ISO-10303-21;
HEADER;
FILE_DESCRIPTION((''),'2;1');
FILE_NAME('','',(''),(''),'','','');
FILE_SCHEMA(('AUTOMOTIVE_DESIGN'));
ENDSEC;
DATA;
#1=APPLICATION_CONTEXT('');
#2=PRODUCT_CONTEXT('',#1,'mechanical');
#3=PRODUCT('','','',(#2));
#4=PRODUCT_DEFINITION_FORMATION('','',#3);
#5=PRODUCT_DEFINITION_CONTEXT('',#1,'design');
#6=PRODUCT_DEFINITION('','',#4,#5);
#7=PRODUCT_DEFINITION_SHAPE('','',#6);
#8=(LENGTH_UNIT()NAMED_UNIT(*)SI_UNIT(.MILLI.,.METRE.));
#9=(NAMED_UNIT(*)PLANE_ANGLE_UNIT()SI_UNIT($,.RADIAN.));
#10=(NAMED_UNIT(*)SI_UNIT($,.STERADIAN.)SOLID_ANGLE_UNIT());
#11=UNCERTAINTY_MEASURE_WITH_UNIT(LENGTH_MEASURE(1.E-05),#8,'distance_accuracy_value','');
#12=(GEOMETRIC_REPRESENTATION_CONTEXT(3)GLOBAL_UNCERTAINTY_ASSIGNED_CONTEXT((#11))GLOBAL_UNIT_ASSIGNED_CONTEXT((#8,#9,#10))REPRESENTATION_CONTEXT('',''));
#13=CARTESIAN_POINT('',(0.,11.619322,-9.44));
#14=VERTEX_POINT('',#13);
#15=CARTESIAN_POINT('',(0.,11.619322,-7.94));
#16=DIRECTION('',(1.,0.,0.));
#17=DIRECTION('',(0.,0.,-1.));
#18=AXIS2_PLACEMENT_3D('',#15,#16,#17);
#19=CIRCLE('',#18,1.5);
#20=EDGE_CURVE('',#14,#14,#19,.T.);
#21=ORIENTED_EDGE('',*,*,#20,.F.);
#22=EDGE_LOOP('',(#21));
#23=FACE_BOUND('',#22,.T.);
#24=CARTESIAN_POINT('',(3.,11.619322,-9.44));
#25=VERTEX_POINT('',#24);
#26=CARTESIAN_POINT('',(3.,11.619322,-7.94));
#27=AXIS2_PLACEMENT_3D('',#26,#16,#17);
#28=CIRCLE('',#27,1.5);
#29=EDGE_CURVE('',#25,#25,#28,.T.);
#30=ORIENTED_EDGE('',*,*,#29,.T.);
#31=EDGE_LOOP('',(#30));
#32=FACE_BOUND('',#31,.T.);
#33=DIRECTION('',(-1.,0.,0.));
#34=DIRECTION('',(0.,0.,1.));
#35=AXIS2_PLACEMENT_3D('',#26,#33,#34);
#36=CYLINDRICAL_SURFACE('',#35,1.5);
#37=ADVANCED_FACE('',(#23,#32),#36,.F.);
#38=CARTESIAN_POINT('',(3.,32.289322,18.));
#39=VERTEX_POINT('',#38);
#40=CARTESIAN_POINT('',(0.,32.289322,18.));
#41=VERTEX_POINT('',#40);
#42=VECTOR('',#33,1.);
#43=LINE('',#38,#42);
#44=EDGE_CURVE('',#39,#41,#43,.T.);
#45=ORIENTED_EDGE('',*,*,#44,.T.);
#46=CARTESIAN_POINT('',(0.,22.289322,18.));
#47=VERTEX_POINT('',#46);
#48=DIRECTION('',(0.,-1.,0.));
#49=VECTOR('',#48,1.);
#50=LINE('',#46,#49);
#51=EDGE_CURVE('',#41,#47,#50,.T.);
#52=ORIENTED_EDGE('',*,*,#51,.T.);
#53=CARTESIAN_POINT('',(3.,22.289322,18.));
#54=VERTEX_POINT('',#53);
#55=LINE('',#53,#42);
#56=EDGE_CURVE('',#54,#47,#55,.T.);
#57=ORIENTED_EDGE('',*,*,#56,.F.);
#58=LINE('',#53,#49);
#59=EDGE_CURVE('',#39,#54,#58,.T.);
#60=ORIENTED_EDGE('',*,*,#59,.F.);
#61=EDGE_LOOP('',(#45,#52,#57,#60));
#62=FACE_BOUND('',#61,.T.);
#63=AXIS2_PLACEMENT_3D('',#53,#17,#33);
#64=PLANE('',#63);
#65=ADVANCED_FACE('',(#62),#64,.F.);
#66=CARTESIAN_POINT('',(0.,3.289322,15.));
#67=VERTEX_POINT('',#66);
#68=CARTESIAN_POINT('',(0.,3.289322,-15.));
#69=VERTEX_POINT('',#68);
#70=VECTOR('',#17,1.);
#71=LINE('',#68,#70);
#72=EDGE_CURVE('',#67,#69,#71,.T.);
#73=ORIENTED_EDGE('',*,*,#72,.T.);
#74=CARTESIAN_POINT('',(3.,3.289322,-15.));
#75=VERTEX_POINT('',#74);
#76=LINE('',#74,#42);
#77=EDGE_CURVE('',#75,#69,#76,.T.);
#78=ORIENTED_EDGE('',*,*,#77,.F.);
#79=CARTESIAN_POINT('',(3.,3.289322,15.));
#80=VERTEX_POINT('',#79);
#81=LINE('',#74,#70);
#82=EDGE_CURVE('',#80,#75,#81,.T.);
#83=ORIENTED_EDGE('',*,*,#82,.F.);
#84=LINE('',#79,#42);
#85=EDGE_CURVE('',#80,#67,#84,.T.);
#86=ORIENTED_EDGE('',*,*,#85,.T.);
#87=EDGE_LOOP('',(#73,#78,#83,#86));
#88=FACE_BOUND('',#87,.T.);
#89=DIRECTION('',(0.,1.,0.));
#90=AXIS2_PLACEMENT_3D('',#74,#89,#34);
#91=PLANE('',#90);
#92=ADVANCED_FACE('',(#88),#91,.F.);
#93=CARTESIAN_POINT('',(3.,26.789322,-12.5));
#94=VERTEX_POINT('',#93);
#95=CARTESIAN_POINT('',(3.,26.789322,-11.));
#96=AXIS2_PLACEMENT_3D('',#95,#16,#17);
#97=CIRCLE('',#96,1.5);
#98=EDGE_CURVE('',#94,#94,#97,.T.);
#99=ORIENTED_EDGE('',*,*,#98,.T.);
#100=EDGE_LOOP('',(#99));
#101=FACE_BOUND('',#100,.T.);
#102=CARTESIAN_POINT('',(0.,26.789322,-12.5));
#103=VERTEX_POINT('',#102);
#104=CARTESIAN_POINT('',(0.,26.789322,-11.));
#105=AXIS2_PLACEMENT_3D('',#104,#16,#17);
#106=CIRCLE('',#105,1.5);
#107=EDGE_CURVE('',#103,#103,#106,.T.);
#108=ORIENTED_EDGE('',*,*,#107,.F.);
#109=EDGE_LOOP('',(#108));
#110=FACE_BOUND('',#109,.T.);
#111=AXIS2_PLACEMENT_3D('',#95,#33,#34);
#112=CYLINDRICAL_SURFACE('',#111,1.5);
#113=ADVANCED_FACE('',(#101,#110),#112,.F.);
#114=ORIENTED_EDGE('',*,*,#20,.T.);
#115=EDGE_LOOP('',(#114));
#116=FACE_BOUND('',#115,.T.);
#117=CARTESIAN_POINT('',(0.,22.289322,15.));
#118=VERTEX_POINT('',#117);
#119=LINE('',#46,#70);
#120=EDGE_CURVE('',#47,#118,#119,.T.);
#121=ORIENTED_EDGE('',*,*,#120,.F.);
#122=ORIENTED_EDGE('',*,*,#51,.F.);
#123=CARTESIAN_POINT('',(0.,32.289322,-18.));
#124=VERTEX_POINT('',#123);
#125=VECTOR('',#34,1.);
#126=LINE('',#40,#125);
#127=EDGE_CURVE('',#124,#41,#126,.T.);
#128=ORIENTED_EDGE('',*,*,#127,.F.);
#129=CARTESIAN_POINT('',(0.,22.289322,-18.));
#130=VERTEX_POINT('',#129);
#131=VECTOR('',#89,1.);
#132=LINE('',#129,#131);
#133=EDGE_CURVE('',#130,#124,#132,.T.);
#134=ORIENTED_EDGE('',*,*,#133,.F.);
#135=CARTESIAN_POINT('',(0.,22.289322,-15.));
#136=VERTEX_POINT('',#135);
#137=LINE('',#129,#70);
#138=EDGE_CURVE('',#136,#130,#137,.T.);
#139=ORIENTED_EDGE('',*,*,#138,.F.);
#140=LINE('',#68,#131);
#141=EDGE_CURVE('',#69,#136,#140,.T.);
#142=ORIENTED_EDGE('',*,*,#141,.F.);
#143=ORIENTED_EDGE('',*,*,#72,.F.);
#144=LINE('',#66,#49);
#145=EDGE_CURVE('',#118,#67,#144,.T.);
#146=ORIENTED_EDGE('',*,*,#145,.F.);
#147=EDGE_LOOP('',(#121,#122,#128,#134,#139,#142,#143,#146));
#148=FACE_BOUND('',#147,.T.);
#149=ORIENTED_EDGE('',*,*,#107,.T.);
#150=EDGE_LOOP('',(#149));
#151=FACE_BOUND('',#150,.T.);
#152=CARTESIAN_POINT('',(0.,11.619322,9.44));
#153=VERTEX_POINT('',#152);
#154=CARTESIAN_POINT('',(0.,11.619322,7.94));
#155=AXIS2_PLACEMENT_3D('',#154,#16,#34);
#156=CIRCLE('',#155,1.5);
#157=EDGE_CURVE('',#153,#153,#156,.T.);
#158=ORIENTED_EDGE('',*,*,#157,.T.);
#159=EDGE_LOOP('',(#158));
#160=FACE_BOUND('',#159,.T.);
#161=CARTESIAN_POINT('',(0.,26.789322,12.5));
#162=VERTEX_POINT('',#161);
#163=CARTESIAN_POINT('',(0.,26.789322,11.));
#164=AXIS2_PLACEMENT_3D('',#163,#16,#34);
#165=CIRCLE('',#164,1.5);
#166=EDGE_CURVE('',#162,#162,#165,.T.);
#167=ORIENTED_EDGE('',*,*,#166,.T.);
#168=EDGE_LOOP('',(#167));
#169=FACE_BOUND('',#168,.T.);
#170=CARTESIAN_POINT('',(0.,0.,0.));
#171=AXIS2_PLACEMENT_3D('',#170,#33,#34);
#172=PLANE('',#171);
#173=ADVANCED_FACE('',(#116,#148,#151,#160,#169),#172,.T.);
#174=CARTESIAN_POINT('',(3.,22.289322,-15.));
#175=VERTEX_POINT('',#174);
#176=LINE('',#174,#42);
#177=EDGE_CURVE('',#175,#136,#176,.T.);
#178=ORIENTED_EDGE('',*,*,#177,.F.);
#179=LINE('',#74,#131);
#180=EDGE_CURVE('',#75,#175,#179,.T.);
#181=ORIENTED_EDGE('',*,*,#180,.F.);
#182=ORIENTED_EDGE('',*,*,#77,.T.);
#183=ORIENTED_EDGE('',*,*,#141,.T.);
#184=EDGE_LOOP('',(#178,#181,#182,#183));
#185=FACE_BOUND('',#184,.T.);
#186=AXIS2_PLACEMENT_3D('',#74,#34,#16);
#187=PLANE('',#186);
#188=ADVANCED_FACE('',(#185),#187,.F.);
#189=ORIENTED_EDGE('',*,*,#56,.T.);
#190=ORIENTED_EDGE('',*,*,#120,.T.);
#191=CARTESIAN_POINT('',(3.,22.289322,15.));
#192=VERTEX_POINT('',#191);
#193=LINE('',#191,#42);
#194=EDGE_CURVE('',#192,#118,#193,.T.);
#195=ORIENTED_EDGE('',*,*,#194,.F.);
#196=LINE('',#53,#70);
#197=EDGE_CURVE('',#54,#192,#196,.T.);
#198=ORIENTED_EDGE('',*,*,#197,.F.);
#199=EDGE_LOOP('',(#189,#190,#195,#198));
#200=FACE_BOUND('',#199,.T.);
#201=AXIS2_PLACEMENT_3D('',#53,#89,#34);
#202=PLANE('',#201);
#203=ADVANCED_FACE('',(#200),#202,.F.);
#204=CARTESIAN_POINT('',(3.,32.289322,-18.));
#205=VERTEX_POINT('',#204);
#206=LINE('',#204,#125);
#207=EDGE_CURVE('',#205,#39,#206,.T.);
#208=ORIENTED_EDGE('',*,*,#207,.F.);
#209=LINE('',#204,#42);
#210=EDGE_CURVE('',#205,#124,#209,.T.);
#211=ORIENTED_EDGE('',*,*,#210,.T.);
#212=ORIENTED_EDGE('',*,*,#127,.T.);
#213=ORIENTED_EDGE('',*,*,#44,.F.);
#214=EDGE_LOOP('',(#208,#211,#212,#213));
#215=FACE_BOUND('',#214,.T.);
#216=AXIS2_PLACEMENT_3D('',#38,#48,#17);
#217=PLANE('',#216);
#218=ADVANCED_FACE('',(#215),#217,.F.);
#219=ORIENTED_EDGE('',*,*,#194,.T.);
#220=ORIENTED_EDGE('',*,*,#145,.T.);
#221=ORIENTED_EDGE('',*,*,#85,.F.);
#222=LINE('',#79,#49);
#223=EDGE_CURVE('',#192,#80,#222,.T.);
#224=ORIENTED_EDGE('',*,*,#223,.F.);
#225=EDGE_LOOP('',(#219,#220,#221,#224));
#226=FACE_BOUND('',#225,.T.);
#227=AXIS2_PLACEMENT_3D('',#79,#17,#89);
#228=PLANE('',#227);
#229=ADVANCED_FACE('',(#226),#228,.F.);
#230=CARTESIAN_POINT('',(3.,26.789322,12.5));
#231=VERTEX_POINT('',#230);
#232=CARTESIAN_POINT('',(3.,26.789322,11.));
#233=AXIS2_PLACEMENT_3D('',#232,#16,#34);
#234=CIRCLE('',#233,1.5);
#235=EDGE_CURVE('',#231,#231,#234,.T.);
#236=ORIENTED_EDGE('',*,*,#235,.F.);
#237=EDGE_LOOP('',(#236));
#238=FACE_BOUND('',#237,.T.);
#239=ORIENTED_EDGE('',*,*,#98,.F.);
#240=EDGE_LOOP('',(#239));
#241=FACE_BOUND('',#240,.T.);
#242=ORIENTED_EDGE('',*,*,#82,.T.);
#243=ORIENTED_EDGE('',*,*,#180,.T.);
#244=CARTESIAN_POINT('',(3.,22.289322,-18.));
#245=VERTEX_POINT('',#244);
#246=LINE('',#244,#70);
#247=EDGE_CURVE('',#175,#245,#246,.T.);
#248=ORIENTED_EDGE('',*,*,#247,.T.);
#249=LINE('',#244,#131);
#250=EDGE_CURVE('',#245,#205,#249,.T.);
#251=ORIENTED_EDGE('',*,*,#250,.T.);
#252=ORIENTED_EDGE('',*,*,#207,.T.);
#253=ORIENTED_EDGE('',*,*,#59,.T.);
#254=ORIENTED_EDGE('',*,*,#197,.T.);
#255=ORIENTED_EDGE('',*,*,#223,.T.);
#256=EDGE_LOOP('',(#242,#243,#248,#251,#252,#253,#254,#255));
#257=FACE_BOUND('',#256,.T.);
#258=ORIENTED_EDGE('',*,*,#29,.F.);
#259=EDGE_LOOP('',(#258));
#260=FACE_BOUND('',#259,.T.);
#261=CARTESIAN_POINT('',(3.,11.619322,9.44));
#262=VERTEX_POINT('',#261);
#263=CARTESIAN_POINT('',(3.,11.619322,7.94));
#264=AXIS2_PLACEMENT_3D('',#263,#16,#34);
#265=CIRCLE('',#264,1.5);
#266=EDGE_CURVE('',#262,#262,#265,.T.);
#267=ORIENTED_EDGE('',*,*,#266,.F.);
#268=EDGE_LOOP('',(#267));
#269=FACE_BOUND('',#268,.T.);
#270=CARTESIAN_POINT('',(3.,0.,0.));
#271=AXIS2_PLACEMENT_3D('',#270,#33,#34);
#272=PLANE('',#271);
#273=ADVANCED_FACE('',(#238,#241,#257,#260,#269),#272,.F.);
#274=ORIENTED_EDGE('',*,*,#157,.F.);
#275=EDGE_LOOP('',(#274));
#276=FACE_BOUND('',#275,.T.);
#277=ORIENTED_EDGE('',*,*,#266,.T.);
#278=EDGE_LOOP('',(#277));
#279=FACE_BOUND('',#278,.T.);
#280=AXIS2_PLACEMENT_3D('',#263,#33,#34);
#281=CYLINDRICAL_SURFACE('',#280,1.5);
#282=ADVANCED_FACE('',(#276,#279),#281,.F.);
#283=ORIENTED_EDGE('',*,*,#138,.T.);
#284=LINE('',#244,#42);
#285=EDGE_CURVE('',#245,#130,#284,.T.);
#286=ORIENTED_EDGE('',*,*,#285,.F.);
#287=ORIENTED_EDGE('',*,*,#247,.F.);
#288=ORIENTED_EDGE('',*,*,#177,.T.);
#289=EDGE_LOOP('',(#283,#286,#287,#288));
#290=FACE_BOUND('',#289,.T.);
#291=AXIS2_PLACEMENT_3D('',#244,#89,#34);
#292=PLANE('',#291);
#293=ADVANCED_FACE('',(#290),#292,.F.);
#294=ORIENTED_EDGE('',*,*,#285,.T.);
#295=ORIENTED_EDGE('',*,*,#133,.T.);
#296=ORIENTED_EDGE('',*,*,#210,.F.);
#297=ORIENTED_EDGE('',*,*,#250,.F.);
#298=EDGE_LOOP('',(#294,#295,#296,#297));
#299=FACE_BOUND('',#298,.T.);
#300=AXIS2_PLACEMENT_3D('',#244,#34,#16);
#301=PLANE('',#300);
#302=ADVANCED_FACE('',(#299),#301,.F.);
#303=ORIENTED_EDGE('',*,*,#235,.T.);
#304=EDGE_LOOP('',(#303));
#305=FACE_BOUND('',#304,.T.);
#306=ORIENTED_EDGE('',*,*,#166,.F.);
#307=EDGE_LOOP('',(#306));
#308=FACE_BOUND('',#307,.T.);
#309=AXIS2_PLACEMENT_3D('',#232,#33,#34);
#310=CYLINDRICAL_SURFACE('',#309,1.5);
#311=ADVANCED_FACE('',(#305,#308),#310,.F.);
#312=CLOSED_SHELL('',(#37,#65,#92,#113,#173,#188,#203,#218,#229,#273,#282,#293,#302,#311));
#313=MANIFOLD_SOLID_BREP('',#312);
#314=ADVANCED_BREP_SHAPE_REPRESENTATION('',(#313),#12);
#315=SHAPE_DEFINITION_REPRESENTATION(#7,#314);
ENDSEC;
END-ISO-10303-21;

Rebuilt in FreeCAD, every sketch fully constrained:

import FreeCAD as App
import Part
import Sketcher
from FreeCAD import Vector
Q = App.Units.Quantity

doc = App.newDocument("Part")
body = doc.addObject("PartDesign::Body", "Body")

# Sketch on YZ plane
sketch1 = body.newObject("Sketcher::SketchObject", "Sketch")
sketch1.AttachmentSupport = (doc.getObject("YZ_Plane"), [""])
sketch1.MapMode = "FlatFace"
sketch1.addGeometry(Part.LineSegment(Vector(3.3, 15, 0), Vector(3.3, -15, 0)), False)
sketch1.addGeometry(Part.LineSegment(Vector(3.3, -15, 0), Vector(22.3, -15, 0)), False)
sketch1.addGeometry(Part.LineSegment(Vector(22.3, -15, 0), Vector(22.3, -18, 0)), False)
sketch1.addGeometry(Part.LineSegment(Vector(22.3, -18, 0), Vector(32.3, -18, 0)), False)
sketch1.addGeometry(Part.LineSegment(Vector(32.3, -18, 0), Vector(32.3, 18, 0)), False)
sketch1.addGeometry(Part.LineSegment(Vector(32.3, 18, 0), Vector(22.3, 18, 0)), False)
sketch1.addGeometry(Part.LineSegment(Vector(22.3, 18, 0), Vector(22.3, 15, 0)), False)
sketch1.addGeometry(Part.LineSegment(Vector(22.3, 15, 0), Vector(3.3, 15, 0)), False)
sketch1.addGeometry(Part.Circle(Vector(11.6, -7.9, 0), Vector(0, 0, 1), 1.5), False)
sketch1.addGeometry(Part.Circle(Vector(11.6, 7.9, 0), Vector(0, 0, 1), 1.5), False)
sketch1.addGeometry(Part.Circle(Vector(26.8, -11, 0), Vector(0, 0, 1), 1.5), False)
sketch1.addGeometry(Part.Circle(Vector(26.8, 11, 0), Vector(0, 0, 1), 1.5), False)
sketch1.addConstraint(Sketcher.Constraint("Coincident", 0, 2, 1, 1))
sketch1.addConstraint(Sketcher.Constraint("Coincident", 1, 2, 2, 1))
sketch1.addConstraint(Sketcher.Constraint("Coincident", 2, 2, 3, 1))
sketch1.addConstraint(Sketcher.Constraint("Coincident", 3, 2, 4, 1))
sketch1.addConstraint(Sketcher.Constraint("Coincident", 4, 2, 5, 1))
sketch1.addConstraint(Sketcher.Constraint("Coincident", 5, 2, 6, 1))
sketch1.addConstraint(Sketcher.Constraint("Coincident", 6, 2, 7, 1))
sketch1.addConstraint(Sketcher.Constraint("Coincident", 7, 2, 0, 1))
sketch1.addConstraint(Sketcher.Constraint("Vertical", 0))
sketch1.addConstraint(Sketcher.Constraint("Horizontal", 1))
sketch1.addConstraint(Sketcher.Constraint("Vertical", 2))
sketch1.addConstraint(Sketcher.Constraint("Horizontal", 3))
sketch1.addConstraint(Sketcher.Constraint("Vertical", 4))
sketch1.addConstraint(Sketcher.Constraint("Horizontal", 5))
sketch1.addConstraint(Sketcher.Constraint("Vertical", 6))
sketch1.addConstraint(Sketcher.Constraint("Horizontal", 7))
sketch1.addConstraint(Sketcher.Constraint("Equal", 8, 9))
sketch1.addConstraint(Sketcher.Constraint("Equal", 9, 10))
sketch1.addConstraint(Sketcher.Constraint("Equal", 10, 11))
sketch1.addConstraint(Sketcher.Constraint("Symmetric", 8, 3, 9, 3, -1))
sketch1.addConstraint(Sketcher.Constraint("Symmetric", 10, 3, 11, 3, -1))
sketch1.addConstraint(Sketcher.Constraint("Symmetric", 2, 2, 5, 2, -1))
sketch1.addConstraint(Sketcher.Constraint("Equal", 2, 6))
sketch1.addConstraint(Sketcher.Constraint("Diameter", 8, Q("3 mm")))
sketch1.addConstraint(Sketcher.Constraint("DistanceX", 1, 1, 1, 2, Q("19 mm")))
sketch1.addConstraint(Sketcher.Constraint("DistanceX", 3, 1, 3, 2, Q("10 mm")))
sketch1.addConstraint(Sketcher.Constraint("DistanceY", 0, 2, 0, 1, Q("30 mm")))
sketch1.addConstraint(Sketcher.Constraint("DistanceY", 2, 2, 2, 1, Q("3 mm")))
sketch1.addConstraint(Sketcher.Constraint("DistanceY", 10, 3, -1, 1, Q("11 mm")))
sketch1.addConstraint(Sketcher.Constraint("DistanceX", 0, 2, 10, 3, Q("23.5 mm")))
sketch1.addConstraint(Sketcher.Constraint("DistanceY", 8, 3, -1, 1, Q("7.94 mm")))
sketch1.addConstraint(Sketcher.Constraint("DistanceX", 8, 3, 10, 3, Q("15.17 mm")))
sketch1.addConstraint(Sketcher.Constraint("DistanceX", -1, 1, 8, 3, Q("11.619322 mm")))
pad1 = body.newObject("PartDesign::Pad", "Pad")
pad1.Profile = sketch1
pad1.Length = 3

doc.recompute()
